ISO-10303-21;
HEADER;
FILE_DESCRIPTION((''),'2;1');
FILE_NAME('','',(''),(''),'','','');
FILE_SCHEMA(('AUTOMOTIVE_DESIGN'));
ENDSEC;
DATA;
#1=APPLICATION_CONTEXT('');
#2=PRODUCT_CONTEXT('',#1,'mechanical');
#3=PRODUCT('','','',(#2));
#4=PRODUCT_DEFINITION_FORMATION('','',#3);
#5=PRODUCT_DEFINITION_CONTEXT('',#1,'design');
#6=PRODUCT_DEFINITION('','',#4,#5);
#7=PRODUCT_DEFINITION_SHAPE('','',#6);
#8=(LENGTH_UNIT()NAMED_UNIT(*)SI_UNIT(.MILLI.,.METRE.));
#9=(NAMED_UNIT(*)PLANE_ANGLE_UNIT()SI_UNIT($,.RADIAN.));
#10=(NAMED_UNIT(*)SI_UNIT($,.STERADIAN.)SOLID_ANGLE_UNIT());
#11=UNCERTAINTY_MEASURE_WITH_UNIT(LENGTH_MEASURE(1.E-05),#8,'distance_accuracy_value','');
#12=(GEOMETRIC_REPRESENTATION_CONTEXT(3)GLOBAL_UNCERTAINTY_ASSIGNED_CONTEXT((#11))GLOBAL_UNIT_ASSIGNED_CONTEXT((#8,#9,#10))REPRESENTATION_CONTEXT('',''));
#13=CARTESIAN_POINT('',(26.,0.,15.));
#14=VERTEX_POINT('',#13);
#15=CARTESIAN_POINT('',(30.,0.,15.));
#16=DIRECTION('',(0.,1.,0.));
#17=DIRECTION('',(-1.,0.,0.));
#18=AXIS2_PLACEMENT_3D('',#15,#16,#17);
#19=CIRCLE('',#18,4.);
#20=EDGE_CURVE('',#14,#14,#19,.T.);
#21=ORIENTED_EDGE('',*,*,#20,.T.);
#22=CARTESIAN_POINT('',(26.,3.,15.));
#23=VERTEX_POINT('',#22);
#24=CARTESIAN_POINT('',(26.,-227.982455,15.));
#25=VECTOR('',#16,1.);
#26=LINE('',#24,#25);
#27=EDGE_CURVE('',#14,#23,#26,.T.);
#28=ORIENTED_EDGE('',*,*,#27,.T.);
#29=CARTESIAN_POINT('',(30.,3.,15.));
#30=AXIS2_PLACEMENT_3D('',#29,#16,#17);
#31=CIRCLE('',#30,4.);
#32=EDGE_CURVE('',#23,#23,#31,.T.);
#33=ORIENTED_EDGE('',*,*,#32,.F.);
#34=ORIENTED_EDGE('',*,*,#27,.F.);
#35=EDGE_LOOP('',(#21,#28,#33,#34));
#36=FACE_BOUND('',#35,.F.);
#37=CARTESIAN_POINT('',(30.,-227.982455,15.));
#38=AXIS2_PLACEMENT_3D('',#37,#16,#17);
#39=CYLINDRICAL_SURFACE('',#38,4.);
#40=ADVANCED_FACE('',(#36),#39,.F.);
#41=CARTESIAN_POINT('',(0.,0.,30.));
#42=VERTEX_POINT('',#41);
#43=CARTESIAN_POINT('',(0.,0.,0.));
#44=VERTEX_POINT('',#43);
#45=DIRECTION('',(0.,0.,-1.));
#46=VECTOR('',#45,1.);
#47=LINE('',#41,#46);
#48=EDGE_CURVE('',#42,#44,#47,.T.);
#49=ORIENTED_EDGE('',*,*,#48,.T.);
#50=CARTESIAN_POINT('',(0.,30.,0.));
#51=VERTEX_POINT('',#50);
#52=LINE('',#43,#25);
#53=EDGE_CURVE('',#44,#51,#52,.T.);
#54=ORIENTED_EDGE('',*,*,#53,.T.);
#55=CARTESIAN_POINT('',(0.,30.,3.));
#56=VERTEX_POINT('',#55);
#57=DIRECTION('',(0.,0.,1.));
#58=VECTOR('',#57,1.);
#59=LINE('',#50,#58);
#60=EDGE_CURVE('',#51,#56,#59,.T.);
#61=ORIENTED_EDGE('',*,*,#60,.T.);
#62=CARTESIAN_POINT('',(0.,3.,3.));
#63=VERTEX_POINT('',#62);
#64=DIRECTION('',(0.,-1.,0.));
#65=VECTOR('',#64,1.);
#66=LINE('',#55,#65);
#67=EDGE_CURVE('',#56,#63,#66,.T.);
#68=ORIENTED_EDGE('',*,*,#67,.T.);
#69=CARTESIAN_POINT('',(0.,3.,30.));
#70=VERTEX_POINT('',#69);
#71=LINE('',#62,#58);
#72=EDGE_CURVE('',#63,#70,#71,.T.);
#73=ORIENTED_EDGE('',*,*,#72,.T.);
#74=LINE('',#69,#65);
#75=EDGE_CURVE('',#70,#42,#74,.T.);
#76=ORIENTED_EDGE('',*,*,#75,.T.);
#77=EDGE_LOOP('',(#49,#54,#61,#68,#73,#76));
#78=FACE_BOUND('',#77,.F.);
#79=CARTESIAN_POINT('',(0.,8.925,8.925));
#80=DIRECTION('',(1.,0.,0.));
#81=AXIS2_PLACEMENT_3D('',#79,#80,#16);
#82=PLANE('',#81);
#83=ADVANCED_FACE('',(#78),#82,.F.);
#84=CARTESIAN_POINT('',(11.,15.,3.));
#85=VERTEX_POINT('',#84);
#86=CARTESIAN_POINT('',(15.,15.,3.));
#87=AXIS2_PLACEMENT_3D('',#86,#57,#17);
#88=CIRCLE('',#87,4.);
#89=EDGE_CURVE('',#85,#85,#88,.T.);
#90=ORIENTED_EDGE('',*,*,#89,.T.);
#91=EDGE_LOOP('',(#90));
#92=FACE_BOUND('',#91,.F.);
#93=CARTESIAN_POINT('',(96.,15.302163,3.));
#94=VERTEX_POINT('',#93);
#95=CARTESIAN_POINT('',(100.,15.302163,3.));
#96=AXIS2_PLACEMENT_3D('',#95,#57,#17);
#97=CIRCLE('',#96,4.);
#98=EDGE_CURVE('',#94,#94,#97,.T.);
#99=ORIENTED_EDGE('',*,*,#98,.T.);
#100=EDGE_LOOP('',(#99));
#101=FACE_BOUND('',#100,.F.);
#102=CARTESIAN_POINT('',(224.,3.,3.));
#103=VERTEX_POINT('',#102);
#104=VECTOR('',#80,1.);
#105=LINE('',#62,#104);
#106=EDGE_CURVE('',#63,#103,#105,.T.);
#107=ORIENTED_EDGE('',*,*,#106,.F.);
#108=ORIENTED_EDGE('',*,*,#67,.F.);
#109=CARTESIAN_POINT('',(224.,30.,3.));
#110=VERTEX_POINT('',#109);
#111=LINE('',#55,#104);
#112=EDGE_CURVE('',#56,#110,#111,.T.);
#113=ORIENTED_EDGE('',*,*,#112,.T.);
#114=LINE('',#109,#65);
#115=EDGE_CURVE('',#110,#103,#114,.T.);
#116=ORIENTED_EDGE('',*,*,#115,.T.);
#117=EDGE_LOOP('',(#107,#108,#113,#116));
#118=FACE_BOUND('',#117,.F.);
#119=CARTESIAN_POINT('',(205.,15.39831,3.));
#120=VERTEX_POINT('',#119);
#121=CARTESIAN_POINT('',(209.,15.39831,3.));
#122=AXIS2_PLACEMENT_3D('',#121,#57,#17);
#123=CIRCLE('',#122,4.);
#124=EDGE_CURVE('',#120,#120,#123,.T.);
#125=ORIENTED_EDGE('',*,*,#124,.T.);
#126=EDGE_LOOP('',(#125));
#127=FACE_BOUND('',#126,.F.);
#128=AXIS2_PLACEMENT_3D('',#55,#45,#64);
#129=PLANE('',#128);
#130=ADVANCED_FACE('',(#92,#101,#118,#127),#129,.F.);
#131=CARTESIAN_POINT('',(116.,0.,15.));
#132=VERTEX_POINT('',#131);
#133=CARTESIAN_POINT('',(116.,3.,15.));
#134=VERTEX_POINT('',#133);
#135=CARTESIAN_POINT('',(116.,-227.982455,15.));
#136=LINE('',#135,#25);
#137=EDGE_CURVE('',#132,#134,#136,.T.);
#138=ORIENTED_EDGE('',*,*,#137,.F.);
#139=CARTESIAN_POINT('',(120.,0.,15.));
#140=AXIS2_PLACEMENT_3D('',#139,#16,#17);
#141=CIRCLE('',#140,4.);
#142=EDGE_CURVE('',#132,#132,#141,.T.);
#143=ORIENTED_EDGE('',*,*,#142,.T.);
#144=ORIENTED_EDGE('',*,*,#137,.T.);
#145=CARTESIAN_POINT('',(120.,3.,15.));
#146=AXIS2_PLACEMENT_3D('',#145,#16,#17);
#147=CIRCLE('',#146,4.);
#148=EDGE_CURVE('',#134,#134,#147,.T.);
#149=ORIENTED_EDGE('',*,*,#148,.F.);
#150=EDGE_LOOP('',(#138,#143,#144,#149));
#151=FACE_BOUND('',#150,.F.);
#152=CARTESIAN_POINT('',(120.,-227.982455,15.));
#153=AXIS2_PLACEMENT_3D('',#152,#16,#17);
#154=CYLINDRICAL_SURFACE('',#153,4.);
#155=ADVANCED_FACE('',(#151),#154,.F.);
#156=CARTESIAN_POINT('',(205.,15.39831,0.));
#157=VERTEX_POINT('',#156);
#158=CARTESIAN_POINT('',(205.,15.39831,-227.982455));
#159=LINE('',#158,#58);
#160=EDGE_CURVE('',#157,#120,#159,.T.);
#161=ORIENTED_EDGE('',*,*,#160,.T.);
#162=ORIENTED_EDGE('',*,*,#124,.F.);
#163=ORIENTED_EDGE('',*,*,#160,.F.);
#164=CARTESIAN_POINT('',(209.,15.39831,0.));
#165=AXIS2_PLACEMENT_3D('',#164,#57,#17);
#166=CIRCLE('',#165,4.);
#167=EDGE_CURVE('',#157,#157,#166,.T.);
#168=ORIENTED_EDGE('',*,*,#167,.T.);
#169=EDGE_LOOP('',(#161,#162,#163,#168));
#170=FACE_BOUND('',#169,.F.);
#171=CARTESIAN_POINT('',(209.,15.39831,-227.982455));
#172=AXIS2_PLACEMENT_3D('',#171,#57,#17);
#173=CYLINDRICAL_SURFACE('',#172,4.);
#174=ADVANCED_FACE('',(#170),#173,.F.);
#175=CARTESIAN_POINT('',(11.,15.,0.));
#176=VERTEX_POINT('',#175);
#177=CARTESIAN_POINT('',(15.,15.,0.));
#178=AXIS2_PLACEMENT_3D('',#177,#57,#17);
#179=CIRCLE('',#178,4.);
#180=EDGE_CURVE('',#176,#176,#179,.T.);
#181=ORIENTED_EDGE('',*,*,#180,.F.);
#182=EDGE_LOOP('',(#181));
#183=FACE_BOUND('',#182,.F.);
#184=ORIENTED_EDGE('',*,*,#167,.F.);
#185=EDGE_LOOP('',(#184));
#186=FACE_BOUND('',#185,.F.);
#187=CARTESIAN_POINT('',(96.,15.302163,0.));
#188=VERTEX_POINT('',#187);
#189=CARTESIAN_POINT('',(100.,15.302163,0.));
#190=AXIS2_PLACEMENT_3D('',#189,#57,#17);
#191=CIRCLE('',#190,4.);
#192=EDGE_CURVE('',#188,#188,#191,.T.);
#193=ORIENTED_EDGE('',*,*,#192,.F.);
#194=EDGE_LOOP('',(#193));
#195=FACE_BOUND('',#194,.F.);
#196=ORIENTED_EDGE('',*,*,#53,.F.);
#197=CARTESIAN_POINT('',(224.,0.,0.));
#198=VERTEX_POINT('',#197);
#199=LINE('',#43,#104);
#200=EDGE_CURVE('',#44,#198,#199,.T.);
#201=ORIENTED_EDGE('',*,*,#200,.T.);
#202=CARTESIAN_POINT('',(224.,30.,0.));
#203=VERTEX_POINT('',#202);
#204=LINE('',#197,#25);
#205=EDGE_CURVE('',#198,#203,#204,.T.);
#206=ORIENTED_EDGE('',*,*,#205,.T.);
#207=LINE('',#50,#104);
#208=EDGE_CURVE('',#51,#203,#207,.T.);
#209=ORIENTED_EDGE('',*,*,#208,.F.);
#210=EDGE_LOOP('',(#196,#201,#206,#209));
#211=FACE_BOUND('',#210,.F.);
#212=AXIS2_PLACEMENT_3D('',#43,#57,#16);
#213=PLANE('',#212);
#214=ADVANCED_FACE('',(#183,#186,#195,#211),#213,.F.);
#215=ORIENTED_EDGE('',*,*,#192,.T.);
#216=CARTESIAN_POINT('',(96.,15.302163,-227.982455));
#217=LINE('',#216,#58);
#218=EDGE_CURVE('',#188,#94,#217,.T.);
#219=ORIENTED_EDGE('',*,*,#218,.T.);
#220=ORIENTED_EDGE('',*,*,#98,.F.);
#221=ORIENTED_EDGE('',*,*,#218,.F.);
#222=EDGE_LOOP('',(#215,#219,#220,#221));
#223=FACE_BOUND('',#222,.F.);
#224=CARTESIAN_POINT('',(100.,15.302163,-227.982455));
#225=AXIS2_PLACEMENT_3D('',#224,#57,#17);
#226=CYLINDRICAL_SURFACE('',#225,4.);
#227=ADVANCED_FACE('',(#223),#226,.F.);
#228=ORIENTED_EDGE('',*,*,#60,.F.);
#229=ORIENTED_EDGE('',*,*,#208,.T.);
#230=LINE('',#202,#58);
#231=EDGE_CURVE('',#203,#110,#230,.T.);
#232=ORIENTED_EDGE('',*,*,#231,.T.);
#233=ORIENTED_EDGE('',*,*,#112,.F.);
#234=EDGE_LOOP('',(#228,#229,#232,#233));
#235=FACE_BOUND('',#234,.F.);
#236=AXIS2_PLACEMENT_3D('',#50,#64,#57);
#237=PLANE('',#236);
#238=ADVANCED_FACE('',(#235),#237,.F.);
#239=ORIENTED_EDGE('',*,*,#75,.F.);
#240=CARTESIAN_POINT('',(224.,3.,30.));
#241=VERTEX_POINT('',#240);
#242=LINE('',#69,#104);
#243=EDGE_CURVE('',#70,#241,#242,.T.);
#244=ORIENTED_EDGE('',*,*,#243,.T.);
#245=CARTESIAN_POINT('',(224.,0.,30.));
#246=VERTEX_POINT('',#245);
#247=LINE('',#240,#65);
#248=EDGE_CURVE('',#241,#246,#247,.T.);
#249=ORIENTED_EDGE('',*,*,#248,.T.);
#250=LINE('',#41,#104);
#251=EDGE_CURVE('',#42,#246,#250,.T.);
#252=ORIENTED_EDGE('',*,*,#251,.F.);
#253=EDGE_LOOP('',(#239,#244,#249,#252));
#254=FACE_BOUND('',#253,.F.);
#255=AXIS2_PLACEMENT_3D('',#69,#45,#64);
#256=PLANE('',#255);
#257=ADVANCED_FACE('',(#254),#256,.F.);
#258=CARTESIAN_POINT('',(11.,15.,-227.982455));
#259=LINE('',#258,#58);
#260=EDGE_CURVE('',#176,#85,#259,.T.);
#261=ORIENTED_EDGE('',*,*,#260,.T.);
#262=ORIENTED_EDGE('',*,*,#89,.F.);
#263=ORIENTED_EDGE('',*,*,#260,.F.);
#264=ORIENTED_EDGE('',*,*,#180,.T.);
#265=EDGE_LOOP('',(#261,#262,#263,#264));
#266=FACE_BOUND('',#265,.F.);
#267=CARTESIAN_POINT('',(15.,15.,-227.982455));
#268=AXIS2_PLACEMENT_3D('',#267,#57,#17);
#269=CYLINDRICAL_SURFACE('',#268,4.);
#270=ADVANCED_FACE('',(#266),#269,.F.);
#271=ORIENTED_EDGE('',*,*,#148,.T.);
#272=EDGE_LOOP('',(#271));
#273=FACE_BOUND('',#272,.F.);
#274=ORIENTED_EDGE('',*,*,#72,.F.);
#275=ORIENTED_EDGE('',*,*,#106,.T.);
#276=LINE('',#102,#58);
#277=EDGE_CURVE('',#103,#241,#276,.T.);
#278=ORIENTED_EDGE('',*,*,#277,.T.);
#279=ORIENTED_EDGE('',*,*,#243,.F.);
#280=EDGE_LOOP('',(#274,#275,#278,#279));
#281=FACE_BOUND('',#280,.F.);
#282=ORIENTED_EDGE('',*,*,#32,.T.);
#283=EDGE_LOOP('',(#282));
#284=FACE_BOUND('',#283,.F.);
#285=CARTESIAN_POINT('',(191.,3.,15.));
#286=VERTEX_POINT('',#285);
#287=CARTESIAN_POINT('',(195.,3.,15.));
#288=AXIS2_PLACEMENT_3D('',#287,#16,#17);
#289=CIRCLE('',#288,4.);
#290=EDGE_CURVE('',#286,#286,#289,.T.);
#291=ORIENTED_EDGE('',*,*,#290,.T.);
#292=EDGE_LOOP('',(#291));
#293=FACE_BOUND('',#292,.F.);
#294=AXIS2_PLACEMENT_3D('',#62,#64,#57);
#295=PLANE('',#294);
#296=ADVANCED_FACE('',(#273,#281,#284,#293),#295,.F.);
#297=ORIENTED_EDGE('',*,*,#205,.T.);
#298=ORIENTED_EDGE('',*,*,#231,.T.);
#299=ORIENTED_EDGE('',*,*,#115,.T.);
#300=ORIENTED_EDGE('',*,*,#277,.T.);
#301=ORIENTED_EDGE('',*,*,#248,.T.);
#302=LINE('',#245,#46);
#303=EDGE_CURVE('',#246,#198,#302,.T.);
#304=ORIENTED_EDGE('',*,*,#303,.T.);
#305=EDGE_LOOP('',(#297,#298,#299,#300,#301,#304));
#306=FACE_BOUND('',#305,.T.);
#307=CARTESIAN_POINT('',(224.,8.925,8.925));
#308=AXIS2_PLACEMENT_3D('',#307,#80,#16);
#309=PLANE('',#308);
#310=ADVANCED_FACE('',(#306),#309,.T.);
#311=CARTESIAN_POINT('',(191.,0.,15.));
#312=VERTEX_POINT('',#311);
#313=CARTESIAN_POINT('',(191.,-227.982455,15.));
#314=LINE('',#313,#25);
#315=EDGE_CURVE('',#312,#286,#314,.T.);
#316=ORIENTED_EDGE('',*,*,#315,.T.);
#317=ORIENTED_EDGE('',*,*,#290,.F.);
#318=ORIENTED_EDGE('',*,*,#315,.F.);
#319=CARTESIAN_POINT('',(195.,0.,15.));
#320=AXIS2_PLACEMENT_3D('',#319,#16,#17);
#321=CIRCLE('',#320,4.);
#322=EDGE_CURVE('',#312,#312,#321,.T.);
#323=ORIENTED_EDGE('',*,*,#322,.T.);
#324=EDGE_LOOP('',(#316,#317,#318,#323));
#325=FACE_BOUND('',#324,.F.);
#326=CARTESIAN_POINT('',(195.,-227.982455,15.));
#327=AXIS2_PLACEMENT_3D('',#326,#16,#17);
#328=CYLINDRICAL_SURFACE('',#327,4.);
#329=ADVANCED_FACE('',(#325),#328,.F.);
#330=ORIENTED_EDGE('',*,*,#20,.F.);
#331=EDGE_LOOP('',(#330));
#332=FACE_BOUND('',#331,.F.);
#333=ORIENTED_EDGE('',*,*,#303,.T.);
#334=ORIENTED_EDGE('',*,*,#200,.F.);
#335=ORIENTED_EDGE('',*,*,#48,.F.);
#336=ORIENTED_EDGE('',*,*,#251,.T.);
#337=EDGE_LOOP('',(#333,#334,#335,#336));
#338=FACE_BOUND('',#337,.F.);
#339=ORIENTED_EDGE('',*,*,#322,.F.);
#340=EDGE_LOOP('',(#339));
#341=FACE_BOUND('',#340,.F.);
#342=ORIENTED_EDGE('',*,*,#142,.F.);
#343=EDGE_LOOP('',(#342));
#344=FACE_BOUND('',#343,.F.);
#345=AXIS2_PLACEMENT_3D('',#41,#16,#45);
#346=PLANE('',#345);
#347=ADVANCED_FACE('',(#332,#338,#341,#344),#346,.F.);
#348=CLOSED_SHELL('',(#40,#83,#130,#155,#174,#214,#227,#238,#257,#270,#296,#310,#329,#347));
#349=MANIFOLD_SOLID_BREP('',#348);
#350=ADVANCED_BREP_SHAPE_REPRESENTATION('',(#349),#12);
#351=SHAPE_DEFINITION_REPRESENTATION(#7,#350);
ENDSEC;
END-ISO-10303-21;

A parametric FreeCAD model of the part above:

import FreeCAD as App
import Part
import Sketcher

V = App.Vector

doc = App.newDocument("Part")
body = doc.addObject("PartDesign::Body", "Body")

sketch1 = body.newObject("Sketcher::SketchObject", "Sketch")
sketch1.AttachmentSupport = (doc.getObject("YZ_Plane"), [""])
sketch1.MapMode = "FlatFace"
sketch1.addGeometry(Part.LineSegment(V(0, 30, 0), V(0, 0, 0)), False)
sketch1.addGeometry(Part.LineSegment(V(0, 0, 0), V(30, 0, 0)), False)
sketch1.addGeometry(Part.LineSegment(V(30, 0, 0), V(30, 3, 0)), False)
sketch1.addGeometry(Part.LineSegment(V(30, 3, 0), V(3, 3, 0)), False)
sketch1.addGeometry(Part.LineSegment(V(3, 3, 0), V(3, 30, 0)), False)
sketch1.addGeometry(Part.LineSegment(V(3, 30, 0), V(0, 30, 0)), False)
sketch1.addConstraint(Sketcher.Constraint("Coincident", 0, 2, 1, 1))
sketch1.addConstraint(Sketcher.Constraint("Coincident", 1, 2, 2, 1))
sketch1.addConstraint(Sketcher.Constraint("Coincident", 2, 2, 3, 1))
sketch1.addConstraint(Sketcher.Constraint("Coincident", 3, 2, 4, 1))
sketch1.addConstraint(Sketcher.Constraint("Coincident", 4, 2, 5, 1))
sketch1.addConstraint(Sketcher.Constraint("Coincident", 5, 2, 0, 1))
sketch1.addConstraint(Sketcher.Constraint("Vertical", 0))
sketch1.addConstraint(Sketcher.Constraint("Horizontal", 1))
sketch1.addConstraint(Sketcher.Constraint("Vertical", 2))
sketch1.addConstraint(Sketcher.Constraint("Horizontal", 3))
sketch1.addConstraint(Sketcher.Constraint("Vertical", 4))
sketch1.addConstraint(Sketcher.Constraint("Horizontal", 5))
sketch1.addConstraint(Sketcher.Constraint("Coincident", 0, 2, -1, 1))
sketch1.addConstraint(Sketcher.Constraint("Equal", 1, 0))
sketch1.addConstraint(Sketcher.Constraint("Equal", 5, 2))
sketch1.addConstraint(Sketcher.Constraint("DistanceX", 1, 1, 1, 2, 30.0))
sketch1.addConstraint(Sketcher.Constraint("DistanceX", 3, 2, 3, 1, 27.0))
pad1 = body.newObject("PartDesign::Pad", "Pad")
pad1.Profile = sketch1
pad1.Length = 224

sketch2 = body.newObject("Sketcher::SketchObject", "Sketch001")
sketch2.AttachmentSupport = (doc.getObject("XY_Plane"), [""])
sketch2.MapMode = "FlatFace"
sketch2.addGeometry(Part.Circle(V(15, 15, 0), V(0, 0, 1), 4), False)
sketch2.addGeometry(Part.Circle(V(100, 15.3, 0), V(0, 0, 1), 4), False)
sketch2.addGeometry(Part.Circle(V(209, 15.4, 0), V(0, 0, 1), 4), False)
sketch2.addConstraint(Sketcher.Constraint("Equal", 0, 1))
sketch2.addConstraint(Sketcher.Constraint("Equal", 1, 2))
sketch2.addConstraint(Sketcher.Constraint("Diameter", 0, 8.0))
sketch2.addConstraint(Sketcher.Constraint("DistanceX", -1, 1, 0, 3, 15.0))
sketch2.addConstraint(Sketcher.Constraint("DistanceY", -1, 1, 0, 3, 15.0))
sketch2.addConstraint(Sketcher.Constraint("DistanceX", -1, 1, 1, 3, 100.0))
sketch2.addConstraint(Sketcher.Constraint("DistanceX", -1, 1, 2, 3, 209.0))
sketch2.addConstraint(Sketcher.Constraint("DistanceY", -1, 1, 2, 3, 15.39831))
sketch2.addConstraint(Sketcher.Constraint("DistanceY", -1, 1, 1, 3, 15.302163))
doc.recompute()
hole = body.newObject("PartDesign::Hole", "Hole")
hole.Profile = sketch2
hole.ThreadType = "None"
hole.Diameter = 8
hole.DepthType = "ThroughAll"
hole.Reversed = True

sketch3 = body.newObject("Sketcher::SketchObject", "Sketch002")
sketch3.AttachmentSupport = (doc.getObject("XZ_Plane"), [""])
sketch3.MapMode = "FlatFace"
sketch3.addGeometry(Part.Circle(V(30, 15, 0), V(0, 0, 1), 4), False)
sketch3.addGeometry(Part.Circle(V(120, 15, 0), V(0, 0, 1), 4), False)
sketch3.addGeometry(Part.Circle(V(195, 15, 0), V(0, 0, 1), 4), False)
sketch3.addConstraint(Sketcher.Constraint("Equal", 0, 1))
sketch3.addConstraint(Sketcher.Constraint("Equal", 1, 2))
sketch3.addConstraint(Sketcher.Constraint("Horizontal", 0, 3, 1, 3))
sketch3.addConstraint(Sketcher.Constraint("Horizontal", 1, 3, 2, 3))
sketch3.addConstraint(Sketcher.Constraint("Diameter", 0, 8.0))
sketch3.addConstraint(Sketcher.Constraint("DistanceX", -1, 1, 0, 3, 30.0))
sketch3.addConstraint(Sketcher.Constraint("DistanceY", -1, 1, 0, 3, 15.0))
sketch3.addConstraint(Sketcher.Constraint("DistanceX", -1, 1, 1, 3, 120.0))
sketch3.addConstraint(Sketcher.Constraint("DistanceX", -1, 1, 2, 3, 195.0))
doc.recompute()
hole2 = body.newObject("PartDesign::Hole", "Hole001")
hole2.Profile = sketch3
hole2.ThreadType = "None"
hole2.Diameter = 8
hole2.DepthType = "ThroughAll"

doc.recompute()
